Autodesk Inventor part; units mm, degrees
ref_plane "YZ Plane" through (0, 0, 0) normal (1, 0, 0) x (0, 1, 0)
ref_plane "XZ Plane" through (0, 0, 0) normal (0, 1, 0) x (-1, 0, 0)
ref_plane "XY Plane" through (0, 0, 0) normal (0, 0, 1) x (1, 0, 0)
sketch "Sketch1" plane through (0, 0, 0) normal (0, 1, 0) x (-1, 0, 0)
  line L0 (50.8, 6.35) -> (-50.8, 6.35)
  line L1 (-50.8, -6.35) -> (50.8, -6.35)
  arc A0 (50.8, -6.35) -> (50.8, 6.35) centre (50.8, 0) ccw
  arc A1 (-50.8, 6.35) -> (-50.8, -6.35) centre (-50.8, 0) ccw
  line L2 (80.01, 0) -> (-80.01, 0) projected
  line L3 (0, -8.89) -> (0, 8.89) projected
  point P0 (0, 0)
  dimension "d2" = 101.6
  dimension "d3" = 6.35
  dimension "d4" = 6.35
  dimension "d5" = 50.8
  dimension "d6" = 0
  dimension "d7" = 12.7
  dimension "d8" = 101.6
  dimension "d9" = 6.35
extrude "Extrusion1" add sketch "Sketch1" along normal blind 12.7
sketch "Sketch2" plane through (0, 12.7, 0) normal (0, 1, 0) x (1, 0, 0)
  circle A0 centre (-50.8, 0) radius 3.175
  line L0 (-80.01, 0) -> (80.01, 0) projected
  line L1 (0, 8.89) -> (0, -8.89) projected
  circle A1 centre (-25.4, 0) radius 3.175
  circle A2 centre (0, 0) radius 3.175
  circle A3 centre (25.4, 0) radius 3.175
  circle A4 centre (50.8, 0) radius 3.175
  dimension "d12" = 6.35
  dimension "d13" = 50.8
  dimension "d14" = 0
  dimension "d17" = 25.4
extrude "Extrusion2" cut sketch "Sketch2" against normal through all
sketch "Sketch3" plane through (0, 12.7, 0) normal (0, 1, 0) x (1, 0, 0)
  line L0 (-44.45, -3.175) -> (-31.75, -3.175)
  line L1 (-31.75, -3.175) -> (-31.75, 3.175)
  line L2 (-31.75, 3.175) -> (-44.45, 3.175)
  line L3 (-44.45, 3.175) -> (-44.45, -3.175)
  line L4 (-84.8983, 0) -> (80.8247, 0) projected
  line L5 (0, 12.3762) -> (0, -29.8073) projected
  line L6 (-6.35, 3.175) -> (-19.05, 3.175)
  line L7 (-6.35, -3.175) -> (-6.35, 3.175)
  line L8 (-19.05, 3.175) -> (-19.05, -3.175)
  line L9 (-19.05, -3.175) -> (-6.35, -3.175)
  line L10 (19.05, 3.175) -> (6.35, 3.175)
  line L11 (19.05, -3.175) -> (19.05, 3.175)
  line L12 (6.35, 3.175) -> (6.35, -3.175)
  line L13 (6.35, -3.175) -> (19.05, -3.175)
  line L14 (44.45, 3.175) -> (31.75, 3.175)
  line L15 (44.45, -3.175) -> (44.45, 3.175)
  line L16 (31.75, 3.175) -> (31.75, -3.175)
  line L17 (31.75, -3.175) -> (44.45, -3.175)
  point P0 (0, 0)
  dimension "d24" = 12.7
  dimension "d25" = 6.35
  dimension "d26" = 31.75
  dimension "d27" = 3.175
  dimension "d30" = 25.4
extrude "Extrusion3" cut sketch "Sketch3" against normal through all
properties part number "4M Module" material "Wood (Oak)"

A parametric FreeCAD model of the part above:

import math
import FreeCAD as App
import Part
import Sketcher
Q = App.Units.Quantity


def add_polygon(sketch, points):
    """Adds a closed chain of lines whose ends are joined by coincident constraints."""
    first, n = sketch.GeometryCount, len(points)
    for a, b in zip(points, points[1:] + points[:1]):
        sketch.addGeometry(Part.LineSegment(App.Vector(*a, 0), App.Vector(*b, 0)), False)
    for i in range(n):
        sketch.addConstraint(Sketcher.Constraint("Coincident", first + i, 2, first + (i + 1) % n, 1))

doc = App.newDocument("Part")
body = doc.addObject("PartDesign::Body", "Body")

# Sketch on XZ plane
sketch1 = body.newObject("Sketcher::SketchObject", "Sketch")
sketch1.AttachmentSupport = (doc.getObject("XZ_Plane"), [""])
sketch1.MapMode = "FlatFace"
sketch1.addGeometry([
    Part.LineSegment(App.Vector(-51, 6, 0), App.Vector(51, 6, 0)),
    Part.ArcOfCircle(Part.Circle(App.Vector(51, 0, 0), App.Vector(0, 0, 1), 6), math.radians(-90), math.radians(90)),
    Part.LineSegment(App.Vector(51, -6, 0), App.Vector(-51, -6, 0)),
    Part.ArcOfCircle(Part.Circle(App.Vector(-51, 0, 0), App.Vector(0, 0, 1), 6), math.radians(90), math.radians(270)),
], False)
sketch1.addConstraint([
    Sketcher.Constraint("Tangent", 0, 2, 1, 2),
    Sketcher.Constraint("Tangent", 1, 1, 2, 1),
    Sketcher.Constraint("Tangent", 2, 2, 3, 2),
    Sketcher.Constraint("Tangent", 3, 1, 0, 1),
    Sketcher.Constraint("Horizontal", 0),
    Sketcher.Constraint("Horizontal", 2),
    Sketcher.Constraint("Symmetric", 1, 3, 3, 3, -1, 1),
    Sketcher.Constraint("DistanceX", 0, 1, 0, 2, Q("4 in")),
    Sketcher.Constraint("Radius", 1, Q("0.25 in")),
])
pad1 = body.newObject("PartDesign::Pad", "Pad")
pad1.Profile = sketch1
pad1.Length = Q("0.5 in")
pad1.Reversed = True

# Sketch on XZ plane
sketch2 = body.newObject("Sketcher::SketchObject", "Sketch001")
sketch2.AttachmentSupport = (doc.getObject("XZ_Plane"), [""])
sketch2.MapMode = "FlatFace"
sketch2.AttachmentOffset = App.Placement(App.Vector(0, 0, -0.5 * 25.4), App.Rotation())
sketch2.addGeometry([
    Part.Circle(App.Vector(-50.8, 0, 0), App.Vector(0, 0, 1), 3.2),  # 0
    Part.Circle(App.Vector(50.8, 0, 0), App.Vector(0, 0, 1), 3.2),  # 1
    Part.Circle(App.Vector(25.4, 0, 0), App.Vector(0, 0, 1), 3.2),  # 2
    Part.Circle(App.Vector(0, 0, 0), App.Vector(0, 0, 1), 3.2),  # 3
    Part.Circle(App.Vector(-25.4, 0, 0), App.Vector(0, 0, 1), 3.2),  # 4
], False)
sketch2.addConstraint([
    Sketcher.Constraint("Coincident", 3, 3, -1, 1),
    Sketcher.Constraint("Equal", 0, 1),
    Sketcher.Constraint("Equal", 1, 2),
    Sketcher.Constraint("Equal", 2, 3),
    Sketcher.Constraint("Equal", 3, 4),
    Sketcher.Constraint("Symmetric", 0, 3, 1, 3, -1, 1),
    Sketcher.Constraint("Symmetric", 2, 3, 4, 3, -1, 1),
    Sketcher.Constraint("PointOnObject", 0, 3, -1),
    Sketcher.Constraint("PointOnObject", 2, 3, -1),
    Sketcher.Constraint("Diameter", 0, Q("0.25 in")),
    Sketcher.Constraint("DistanceX", 0, 3, -1, 1, Q("2 in")),
    Sketcher.Constraint("DistanceX", -1, 1, 2, 3, Q("1 in")),
])
pocket1 = body.newObject("PartDesign::Pocket", "Pocket")
pocket1.Profile = sketch2
pocket1.Type = "ThroughAll"
pocket1.Reversed = True

# Sketch on XZ plane
sketch3 = body.newObject("Sketcher::SketchObject", "Sketch002")
sketch3.AttachmentSupport = (doc.getObject("XZ_Plane"), [""])
sketch3.MapMode = "FlatFace"
sketch3.AttachmentOffset = App.Placement(App.Vector(0, 0, -0.5 * 25.4), App.Rotation())
add_polygon(sketch3, [(-44, 3), (-32, 3), (-32, -3), (-44, -3)])  # lines 0-3
add_polygon(sketch3, [(32, -3), (32, 3), (44, 3), (44, -3)])  # lines 4-7
add_polygon(sketch3, [(6, -3), (6, 3), (19, 3), (19, -3)])  # lines 8-11
add_polygon(sketch3, [(-19, -3), (-19, 3), (-6, 3), (-6, -3)])  # lines 12-15
sketch3.addConstraint([
    Sketcher.Constraint("Horizontal", 0),
    Sketcher.Constraint("Vertical", 1),
    Sketcher.Constraint("Horizontal", 2),
    Sketcher.Constraint("Vertical", 3),
    Sketcher.Constraint("Vertical", 4),
    Sketcher.Constraint("Horizontal", 5),
    Sketcher.Constraint("Vertical", 6),
    Sketcher.Constraint("Horizontal", 7),
    Sketcher.Constraint("Vertical", 8),
    Sketcher.Constraint("Horizontal", 9),
    Sketcher.Constraint("Vertical", 10),
    Sketcher.Constraint("Horizontal", 11),
    Sketcher.Constraint("Vertical", 12),
    Sketcher.Constraint("Horizontal", 13),
    Sketcher.Constraint("Vertical", 14),
    Sketcher.Constraint("Horizontal", 15),
    Sketcher.Constraint("Symmetric", 1, 2, 4, 2, -1, 1),
    Sketcher.Constraint("Symmetric", 3, 2, 6, 2, -1, 1),
    Sketcher.Constraint("Symmetric", 10, 2, 12, 2, -1, 1),
    Sketcher.Constraint("Symmetric", 8, 2, 14, 2, -1, 1),
    Sketcher.Constraint("Horizontal", 3, 2, 4, 2),
    Sketcher.Constraint("Horizontal", 5, 2, 8, 2),
    Sketcher.Constraint("Horizontal", 7, 2, 10, 2),
    Sketcher.Constraint("Equal", 7, 9),
    Sketcher.Constraint("DistanceX", 0, 1, 0, 2, Q("0.5 in")),
    Sketcher.Constraint("DistanceX", 8, 2, 4, 2, Q("1 in")),
    Sketcher.Constraint("DistanceX", 12, 2, 8, 2, Q("1 in")),
    Sketcher.Constraint("DistanceY", 1, 2, 1, 1, Q("0.25 in")),
])
pocket2 = body.newObject("PartDesign::Pocket", "Pocket001")
pocket2.Profile = sketch3
pocket2.Type = "ThroughAll"
pocket2.Reversed = True

doc.recompute()
